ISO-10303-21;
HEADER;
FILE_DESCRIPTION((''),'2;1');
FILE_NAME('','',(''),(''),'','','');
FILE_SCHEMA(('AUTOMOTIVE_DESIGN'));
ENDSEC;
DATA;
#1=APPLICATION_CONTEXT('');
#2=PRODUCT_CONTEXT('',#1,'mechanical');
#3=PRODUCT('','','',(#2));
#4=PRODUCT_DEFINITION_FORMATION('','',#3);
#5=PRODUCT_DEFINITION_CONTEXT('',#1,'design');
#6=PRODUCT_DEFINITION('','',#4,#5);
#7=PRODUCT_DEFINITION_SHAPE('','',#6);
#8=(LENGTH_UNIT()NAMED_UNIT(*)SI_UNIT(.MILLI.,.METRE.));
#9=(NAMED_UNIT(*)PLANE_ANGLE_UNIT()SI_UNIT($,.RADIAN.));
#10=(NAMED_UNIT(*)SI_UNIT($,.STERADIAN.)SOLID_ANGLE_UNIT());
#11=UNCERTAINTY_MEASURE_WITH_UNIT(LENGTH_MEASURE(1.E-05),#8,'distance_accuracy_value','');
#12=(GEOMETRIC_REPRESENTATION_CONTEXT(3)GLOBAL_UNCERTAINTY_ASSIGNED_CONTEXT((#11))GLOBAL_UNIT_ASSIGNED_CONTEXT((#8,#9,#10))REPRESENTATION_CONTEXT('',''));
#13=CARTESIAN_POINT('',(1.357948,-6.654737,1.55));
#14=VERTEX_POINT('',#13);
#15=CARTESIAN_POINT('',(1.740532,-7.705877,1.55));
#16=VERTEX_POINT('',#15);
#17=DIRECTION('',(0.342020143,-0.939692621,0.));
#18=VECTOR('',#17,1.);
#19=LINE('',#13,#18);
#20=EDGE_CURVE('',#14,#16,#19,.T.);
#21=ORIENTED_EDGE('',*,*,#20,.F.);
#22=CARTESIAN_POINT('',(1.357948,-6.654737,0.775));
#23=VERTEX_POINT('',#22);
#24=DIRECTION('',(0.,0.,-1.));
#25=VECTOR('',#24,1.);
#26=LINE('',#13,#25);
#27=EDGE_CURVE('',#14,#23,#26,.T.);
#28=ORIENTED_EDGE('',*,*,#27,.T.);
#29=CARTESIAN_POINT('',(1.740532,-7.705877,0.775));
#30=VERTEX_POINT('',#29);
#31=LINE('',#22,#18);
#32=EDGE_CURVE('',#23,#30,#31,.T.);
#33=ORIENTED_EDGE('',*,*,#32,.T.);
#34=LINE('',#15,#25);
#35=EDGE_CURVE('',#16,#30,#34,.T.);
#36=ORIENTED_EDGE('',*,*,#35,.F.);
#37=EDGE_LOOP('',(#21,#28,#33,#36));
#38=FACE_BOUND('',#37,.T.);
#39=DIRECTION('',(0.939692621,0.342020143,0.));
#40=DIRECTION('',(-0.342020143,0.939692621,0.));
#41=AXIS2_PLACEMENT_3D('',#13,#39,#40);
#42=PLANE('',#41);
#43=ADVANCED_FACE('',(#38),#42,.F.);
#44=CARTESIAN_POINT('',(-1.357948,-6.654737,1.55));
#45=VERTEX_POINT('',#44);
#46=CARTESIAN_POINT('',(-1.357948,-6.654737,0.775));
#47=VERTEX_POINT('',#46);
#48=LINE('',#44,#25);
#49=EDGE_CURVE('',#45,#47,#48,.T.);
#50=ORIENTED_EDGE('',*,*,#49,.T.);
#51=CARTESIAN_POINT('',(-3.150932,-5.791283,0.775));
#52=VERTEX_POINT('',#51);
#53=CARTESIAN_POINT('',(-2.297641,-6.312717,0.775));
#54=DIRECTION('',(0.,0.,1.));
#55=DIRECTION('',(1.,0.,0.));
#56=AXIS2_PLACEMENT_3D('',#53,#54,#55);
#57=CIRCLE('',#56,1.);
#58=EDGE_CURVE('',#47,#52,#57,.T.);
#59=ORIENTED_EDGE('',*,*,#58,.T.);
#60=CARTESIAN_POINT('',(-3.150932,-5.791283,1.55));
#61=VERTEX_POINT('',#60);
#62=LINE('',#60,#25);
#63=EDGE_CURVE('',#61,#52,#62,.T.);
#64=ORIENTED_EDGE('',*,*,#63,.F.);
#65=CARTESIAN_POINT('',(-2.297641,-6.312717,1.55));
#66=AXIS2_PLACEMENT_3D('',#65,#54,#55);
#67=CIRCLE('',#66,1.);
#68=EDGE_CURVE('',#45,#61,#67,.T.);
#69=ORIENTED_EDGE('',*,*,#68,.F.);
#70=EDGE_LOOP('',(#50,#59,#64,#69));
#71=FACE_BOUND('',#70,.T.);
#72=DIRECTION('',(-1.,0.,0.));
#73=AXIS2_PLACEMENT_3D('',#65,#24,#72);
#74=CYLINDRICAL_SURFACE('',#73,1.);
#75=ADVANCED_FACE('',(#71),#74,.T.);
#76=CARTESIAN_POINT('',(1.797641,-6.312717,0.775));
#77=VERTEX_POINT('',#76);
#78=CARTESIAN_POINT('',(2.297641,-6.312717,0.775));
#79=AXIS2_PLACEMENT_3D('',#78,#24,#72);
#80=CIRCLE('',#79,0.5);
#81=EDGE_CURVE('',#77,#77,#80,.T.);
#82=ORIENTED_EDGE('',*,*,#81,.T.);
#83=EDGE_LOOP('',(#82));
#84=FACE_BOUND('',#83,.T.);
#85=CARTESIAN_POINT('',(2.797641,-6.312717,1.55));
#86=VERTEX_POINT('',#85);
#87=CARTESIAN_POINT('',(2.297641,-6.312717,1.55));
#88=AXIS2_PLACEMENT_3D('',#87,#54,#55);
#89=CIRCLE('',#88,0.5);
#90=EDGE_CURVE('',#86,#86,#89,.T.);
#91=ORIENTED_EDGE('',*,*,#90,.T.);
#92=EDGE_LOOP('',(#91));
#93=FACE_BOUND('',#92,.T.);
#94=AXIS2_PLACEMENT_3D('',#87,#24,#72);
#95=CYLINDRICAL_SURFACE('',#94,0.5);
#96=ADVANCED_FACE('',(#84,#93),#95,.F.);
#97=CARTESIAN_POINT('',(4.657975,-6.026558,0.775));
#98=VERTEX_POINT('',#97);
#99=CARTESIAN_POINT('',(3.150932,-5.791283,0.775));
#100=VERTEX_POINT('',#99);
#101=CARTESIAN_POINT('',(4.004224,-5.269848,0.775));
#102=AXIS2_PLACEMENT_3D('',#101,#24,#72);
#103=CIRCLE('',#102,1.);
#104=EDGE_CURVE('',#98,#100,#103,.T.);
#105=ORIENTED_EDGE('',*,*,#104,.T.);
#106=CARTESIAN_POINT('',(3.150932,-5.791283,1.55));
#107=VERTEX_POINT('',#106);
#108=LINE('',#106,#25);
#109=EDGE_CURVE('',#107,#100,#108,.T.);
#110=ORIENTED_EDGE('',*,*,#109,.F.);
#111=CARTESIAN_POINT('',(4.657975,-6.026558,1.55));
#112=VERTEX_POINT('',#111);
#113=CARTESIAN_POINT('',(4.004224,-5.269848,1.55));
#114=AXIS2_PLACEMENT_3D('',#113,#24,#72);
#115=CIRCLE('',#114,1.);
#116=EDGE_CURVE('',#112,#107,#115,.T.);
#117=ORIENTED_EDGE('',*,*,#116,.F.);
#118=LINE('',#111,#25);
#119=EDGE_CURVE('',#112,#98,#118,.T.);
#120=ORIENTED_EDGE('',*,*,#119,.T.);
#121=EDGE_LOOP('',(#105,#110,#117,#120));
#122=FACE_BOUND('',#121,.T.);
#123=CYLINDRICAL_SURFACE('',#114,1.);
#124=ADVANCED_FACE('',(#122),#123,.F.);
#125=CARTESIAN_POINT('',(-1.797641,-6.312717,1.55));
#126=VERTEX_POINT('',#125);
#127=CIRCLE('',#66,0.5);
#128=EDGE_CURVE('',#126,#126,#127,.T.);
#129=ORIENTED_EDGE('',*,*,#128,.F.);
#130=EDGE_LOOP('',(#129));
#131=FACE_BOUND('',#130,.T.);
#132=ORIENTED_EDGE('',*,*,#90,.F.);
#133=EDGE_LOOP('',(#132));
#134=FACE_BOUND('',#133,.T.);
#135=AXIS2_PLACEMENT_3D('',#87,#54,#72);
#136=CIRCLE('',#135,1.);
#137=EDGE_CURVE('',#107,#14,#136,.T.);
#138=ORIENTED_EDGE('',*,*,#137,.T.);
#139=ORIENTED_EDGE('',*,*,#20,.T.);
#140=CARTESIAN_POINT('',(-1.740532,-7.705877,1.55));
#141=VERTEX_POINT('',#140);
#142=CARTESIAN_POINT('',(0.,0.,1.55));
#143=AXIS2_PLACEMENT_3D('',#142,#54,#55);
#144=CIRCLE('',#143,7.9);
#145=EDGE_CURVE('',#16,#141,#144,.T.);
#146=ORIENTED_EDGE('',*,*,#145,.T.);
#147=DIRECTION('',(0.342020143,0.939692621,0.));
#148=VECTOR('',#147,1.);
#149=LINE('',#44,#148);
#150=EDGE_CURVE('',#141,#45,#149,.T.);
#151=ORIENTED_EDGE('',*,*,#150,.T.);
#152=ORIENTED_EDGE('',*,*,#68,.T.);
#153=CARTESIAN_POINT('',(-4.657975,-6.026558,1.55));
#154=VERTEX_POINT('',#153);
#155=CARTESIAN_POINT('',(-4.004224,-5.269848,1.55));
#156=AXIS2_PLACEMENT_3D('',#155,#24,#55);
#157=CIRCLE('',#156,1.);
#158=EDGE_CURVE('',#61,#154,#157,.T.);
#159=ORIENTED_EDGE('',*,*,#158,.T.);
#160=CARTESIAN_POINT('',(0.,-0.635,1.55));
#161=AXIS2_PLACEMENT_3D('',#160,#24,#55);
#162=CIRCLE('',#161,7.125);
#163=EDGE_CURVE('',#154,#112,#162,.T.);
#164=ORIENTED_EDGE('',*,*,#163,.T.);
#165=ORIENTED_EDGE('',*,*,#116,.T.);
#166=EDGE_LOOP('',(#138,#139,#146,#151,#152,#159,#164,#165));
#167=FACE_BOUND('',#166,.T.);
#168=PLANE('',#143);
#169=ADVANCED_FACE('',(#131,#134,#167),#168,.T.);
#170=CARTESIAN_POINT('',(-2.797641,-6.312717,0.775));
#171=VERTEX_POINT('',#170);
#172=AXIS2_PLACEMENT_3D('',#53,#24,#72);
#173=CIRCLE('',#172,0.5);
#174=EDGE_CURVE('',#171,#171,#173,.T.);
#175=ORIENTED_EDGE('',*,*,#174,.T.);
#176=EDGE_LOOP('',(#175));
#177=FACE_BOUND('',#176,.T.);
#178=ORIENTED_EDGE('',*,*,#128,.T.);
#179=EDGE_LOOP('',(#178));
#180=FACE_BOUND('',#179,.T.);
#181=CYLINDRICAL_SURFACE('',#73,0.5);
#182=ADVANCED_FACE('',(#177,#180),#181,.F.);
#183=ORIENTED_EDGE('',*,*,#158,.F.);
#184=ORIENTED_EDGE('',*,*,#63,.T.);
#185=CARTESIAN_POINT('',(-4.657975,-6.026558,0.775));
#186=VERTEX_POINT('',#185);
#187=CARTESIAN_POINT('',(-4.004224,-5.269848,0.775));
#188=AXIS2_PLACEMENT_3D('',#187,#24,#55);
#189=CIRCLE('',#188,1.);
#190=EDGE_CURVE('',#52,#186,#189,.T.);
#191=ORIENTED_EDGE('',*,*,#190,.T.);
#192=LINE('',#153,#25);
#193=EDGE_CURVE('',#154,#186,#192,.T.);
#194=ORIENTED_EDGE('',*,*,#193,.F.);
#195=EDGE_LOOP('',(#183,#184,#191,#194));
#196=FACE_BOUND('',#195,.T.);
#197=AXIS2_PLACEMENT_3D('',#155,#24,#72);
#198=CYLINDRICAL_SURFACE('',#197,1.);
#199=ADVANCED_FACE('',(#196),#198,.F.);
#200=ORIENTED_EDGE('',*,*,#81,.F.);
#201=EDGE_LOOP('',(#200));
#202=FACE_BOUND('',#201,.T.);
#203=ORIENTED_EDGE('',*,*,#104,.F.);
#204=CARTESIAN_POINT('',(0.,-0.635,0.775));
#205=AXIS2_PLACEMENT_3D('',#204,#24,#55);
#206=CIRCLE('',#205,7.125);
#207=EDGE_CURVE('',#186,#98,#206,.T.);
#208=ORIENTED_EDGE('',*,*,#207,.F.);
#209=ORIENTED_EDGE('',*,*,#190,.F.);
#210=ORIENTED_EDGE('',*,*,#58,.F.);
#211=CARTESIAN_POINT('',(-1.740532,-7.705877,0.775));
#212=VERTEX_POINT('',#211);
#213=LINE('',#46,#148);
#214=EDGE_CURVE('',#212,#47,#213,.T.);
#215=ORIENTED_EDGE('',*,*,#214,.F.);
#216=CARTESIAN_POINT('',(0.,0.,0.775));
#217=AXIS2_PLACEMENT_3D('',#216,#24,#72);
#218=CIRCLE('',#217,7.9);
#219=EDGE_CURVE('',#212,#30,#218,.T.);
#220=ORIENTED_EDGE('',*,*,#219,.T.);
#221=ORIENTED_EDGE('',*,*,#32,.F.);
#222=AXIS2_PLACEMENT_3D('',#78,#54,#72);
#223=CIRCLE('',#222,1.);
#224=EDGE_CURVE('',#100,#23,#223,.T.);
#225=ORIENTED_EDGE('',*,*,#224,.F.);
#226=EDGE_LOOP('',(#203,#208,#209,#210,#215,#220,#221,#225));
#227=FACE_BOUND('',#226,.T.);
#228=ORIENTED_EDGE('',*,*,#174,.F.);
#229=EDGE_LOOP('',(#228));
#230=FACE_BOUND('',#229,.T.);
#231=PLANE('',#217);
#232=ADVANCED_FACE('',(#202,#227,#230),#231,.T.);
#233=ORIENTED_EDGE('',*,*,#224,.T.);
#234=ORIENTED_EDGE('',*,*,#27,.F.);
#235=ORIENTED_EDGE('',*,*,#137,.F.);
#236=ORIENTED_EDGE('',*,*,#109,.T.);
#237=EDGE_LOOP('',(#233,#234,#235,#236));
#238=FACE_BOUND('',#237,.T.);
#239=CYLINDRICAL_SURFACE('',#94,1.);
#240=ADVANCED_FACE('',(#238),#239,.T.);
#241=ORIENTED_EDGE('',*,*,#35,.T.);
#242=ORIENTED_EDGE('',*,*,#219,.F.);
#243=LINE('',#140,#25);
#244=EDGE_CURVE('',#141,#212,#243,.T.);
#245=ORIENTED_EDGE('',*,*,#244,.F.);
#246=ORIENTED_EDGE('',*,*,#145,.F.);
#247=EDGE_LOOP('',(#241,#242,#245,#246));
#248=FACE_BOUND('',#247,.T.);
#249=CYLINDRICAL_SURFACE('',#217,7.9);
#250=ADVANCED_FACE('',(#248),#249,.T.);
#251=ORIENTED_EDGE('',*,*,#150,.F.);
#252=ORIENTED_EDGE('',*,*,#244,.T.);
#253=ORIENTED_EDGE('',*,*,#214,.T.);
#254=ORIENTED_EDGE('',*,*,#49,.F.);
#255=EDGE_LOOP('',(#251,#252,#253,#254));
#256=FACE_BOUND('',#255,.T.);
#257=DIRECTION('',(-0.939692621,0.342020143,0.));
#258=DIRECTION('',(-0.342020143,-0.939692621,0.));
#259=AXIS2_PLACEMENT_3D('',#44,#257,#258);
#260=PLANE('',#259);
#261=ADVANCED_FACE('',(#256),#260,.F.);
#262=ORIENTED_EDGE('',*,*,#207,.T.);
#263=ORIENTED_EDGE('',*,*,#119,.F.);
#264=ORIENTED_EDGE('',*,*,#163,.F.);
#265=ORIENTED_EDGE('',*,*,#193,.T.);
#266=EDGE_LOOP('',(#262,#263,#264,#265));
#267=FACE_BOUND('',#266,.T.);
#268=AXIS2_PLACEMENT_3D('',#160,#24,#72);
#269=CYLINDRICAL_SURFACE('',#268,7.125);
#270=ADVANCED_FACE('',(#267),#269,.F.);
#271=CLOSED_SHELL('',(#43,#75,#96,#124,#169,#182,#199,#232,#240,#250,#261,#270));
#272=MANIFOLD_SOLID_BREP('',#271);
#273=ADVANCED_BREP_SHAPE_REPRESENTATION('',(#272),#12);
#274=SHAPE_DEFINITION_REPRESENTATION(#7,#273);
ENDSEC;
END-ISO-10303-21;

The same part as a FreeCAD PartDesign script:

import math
import FreeCAD as App
import Part
import Sketcher

V = App.Vector
Q = App.Units.Quantity

doc = App.newDocument("Part")
body = doc.addObject("PartDesign::Body", "Body")

# Sketch on XY plane
sketch1 = body.newObject("Sketcher::SketchObject", "Sketch")
sketch1.AttachmentSupport = (doc.getObject("XY_Plane"), [""])
sketch1.MapMode = "FlatFace"
sketch1.addGeometry(Part.Circle(V(0, 0, 0), V(0, 0, 1), 8), False)
sketch1.addConstraint([
    Sketcher.Constraint("Coincident", 0, 3, -1, 1),
    Sketcher.Constraint("Diameter", 0, 15.8),
])
pad1 = body.newObject("PartDesign::Pad", "Pad")
pad1.Profile = sketch1
pad1.Length = 0.775

# Sketch on XY plane
sketch2 = body.newObject("Sketcher::SketchObject", "Sketch001")
sketch2.AttachmentSupport = (doc.getObject("XY_Plane"), [""])
sketch2.MapMode = "FlatFace"
sketch2.AttachmentOffset = App.Placement(V(0, 0, 0.775), App.Rotation())
sketch2.addGeometry([
    Part.LineSegment(V(-1.7, -7.7, 0), V(-1.4, -6.7, 0)),  # 0
    Part.ArcOfCircle(Part.Circle(V(-2.3, -6.3, 0), V(0, 0, 1), 1), math.radians(-20), math.radians(149)),  # 1
    Part.ArcOfCircle(Part.Circle(V(-4, -5.3, 0), V(0, 0, 1), 1), math.radians(-131), math.radians(-31)),  # 2
    Part.ArcOfCircle(Part.Circle(V(0, -0.6, 0), V(0, 0, 1), 7.1), math.radians(-49), math.radians(229)),  # 3
    Part.ArcOfCircle(Part.Circle(V(4, -5.3, 0), V(0, 0, 1), 1), math.radians(-149), math.radians(-49)),  # 4
    Part.ArcOfCircle(Part.Circle(V(2.3, -6.3, 0), V(0, 0, 1), 1), math.radians(31), math.radians(200)),  # 5
    Part.LineSegment(V(1.4, -6.7, 0), V(1.7, -7.7, 0)),  # 6
    Part.ArcOfCircle(Part.Circle(V(0, 0, 0), V(0, 0, 1), 7.9), math.radians(-77), math.radians(257)),  # 7
    Part.Circle(V(2.3, -6.3, 0), V(0, 0, 1), 0.5),  # 8
    Part.Circle(V(-2.3, -6.3, 0), V(0, 0, 1), 0.5),  # 9
], False)
sketch2.addConstraint([
    Sketcher.Constraint("Tangent", 0, 2, 1, 1),
    Sketcher.Constraint("Tangent", 1, 2, 2, 2),
    Sketcher.Constraint("Tangent", 2, 1, 3, 2),
    Sketcher.Constraint("Tangent", 3, 1, 4, 2),
    Sketcher.Constraint("Tangent", 4, 1, 5, 1),
    Sketcher.Constraint("Tangent", 5, 2, 6, 1),
    Sketcher.Constraint("Coincident", 6, 2, 7, 1),
    Sketcher.Constraint("Coincident", 7, 2, 0, 1),
    Sketcher.Constraint("Coincident", 7, 3, -1, 1),
    Sketcher.Constraint("Coincident", 8, 3, 5, 3),
    Sketcher.Constraint("Coincident", 9, 3, 1, 3),
    Sketcher.Constraint("Equal", 1, 2),
    Sketcher.Constraint("Equal", 2, 4),
    Sketcher.Constraint("Equal", 4, 5),
    Sketcher.Constraint("Equal", 8, 9),
    Sketcher.Constraint("Symmetric", 2, 3, 4, 3, -2),
    Sketcher.Constraint("Symmetric", 0, 2, 5, 2, -2),
    Sketcher.Constraint("Diameter", 8, 1.0),
    Sketcher.Constraint("Radius", 1, 1.0),
    Sketcher.Constraint("Radius", 7, 7.9),
    Sketcher.Constraint("Angle", 0, Q("70 deg")),
    Sketcher.Constraint("Radius", 3, 7.125),
    Sketcher.Constraint("DistanceY", 3, 3, -1, 1, 0.635),
    Sketcher.Constraint("Distance", 0, 1.1186),
    Sketcher.Constraint("DistanceX", 6, 2, 4, 1, 1.4104),
])
pad2 = body.newObject("PartDesign::Pad", "Pad001")
pad2.Profile = sketch2
pad2.Length = 0.775

# Sketch on XY plane
sketch3 = body.newObject("Sketcher::SketchObject", "Sketch002")
sketch3.AttachmentSupport = (doc.getObject("XY_Plane"), [""])
sketch3.MapMode = "FlatFace"
sketch3.addGeometry(Part.Circle(V(0, 0, 0), V(0, 0, 1), 8), False)
sketch3.addConstraint([
    Sketcher.Constraint("Coincident", 0, 3, -1, 1),
    Sketcher.Constraint("Diameter", 0, 15.8),
])
pocket1 = body.newObject("PartDesign::Pocket", "Pocket")
pocket1.Profile = sketch3
pocket1.Length = 0.775
pocket1.Reversed = True

doc.recompute()
